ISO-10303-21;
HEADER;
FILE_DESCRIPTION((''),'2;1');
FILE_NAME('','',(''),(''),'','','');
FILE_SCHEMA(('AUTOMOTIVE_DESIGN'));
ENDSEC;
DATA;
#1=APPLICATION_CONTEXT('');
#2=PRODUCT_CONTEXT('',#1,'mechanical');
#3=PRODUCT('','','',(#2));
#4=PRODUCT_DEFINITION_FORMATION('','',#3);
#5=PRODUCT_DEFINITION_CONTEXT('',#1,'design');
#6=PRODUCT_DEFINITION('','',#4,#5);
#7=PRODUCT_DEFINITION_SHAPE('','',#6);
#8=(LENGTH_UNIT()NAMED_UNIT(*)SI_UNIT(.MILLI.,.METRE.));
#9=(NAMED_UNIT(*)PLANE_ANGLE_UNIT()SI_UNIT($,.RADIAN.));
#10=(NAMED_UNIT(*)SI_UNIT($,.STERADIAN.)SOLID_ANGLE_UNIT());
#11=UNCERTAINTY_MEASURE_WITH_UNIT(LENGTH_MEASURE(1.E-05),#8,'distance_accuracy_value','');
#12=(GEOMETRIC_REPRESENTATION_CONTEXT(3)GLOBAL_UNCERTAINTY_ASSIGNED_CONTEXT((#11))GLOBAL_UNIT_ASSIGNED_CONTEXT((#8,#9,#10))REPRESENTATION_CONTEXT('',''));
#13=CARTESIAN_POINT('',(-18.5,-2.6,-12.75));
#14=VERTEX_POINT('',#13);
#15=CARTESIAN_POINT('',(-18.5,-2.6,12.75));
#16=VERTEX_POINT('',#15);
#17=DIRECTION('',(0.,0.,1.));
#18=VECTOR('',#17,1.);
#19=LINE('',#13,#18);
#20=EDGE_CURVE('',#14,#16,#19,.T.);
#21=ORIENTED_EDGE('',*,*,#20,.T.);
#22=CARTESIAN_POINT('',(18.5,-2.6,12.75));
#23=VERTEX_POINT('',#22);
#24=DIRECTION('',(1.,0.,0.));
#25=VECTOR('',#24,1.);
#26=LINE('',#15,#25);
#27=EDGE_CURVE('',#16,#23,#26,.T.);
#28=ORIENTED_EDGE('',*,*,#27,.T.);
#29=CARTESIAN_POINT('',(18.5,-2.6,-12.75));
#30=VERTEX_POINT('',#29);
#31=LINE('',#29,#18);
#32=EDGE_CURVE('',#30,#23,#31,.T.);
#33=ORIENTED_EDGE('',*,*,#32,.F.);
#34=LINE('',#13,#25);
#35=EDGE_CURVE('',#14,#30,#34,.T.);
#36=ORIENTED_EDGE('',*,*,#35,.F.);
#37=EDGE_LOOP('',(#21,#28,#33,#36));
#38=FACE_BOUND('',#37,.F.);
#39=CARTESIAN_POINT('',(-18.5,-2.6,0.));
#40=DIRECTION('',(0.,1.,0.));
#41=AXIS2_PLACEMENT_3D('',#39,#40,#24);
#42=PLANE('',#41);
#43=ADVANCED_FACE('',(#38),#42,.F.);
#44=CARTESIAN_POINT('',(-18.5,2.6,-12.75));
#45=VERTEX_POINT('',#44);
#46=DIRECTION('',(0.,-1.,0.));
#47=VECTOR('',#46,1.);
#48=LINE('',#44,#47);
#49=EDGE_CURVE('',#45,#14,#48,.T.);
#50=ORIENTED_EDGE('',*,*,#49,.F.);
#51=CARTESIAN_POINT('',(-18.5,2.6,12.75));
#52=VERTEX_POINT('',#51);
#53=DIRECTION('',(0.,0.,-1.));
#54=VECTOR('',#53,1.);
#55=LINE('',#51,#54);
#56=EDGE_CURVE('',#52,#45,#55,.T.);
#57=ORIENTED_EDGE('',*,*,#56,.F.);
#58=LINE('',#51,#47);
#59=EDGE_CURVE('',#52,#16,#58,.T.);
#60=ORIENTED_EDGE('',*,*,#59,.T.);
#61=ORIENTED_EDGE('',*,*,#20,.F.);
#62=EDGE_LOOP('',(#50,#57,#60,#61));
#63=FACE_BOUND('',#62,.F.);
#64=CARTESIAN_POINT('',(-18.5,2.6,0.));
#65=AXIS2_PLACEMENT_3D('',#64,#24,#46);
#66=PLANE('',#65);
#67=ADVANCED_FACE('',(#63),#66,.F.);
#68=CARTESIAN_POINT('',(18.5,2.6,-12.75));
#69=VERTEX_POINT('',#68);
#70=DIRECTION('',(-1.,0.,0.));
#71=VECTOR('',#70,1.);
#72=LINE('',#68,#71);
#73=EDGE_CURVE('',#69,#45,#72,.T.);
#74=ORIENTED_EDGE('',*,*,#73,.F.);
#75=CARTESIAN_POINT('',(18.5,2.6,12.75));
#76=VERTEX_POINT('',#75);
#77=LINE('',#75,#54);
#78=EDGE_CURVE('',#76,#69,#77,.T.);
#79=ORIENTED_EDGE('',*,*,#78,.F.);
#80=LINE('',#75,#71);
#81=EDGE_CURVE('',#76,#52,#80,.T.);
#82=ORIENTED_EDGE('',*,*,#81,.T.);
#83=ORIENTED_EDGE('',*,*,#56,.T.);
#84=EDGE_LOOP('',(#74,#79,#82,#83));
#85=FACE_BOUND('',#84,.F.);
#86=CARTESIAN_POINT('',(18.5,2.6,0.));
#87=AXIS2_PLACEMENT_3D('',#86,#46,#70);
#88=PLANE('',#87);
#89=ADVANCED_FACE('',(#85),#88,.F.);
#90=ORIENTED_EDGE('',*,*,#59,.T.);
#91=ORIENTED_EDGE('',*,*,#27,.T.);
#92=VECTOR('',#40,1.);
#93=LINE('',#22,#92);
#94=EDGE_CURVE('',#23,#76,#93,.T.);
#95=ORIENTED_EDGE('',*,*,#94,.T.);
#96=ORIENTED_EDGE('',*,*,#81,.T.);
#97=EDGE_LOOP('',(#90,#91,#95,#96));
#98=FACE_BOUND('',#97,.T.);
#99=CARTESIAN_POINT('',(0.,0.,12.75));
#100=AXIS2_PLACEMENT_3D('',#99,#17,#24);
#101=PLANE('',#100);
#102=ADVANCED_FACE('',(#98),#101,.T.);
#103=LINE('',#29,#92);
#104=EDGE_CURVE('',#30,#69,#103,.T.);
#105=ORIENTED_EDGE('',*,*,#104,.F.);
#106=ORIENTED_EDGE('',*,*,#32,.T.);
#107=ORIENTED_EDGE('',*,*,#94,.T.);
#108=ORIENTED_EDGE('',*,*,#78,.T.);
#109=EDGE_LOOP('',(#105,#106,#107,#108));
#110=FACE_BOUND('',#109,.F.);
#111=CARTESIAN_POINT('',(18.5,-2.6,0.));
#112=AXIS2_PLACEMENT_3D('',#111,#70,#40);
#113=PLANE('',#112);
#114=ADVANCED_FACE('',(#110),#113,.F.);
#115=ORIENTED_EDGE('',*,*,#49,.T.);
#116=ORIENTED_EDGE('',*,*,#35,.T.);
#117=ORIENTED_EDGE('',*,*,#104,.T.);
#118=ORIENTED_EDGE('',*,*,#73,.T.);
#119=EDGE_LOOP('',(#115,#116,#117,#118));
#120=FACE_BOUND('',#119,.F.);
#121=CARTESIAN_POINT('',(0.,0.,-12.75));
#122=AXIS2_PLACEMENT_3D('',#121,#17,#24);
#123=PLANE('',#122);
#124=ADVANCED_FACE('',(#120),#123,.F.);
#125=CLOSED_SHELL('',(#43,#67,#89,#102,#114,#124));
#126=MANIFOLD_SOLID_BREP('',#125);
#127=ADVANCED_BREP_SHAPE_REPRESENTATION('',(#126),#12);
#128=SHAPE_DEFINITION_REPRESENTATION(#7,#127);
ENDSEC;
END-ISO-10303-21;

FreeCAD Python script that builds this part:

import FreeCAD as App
import Part
import Sketcher
from FreeCAD import Vector
Q = App.Units.Quantity


def add_polygon(sketch, points):
    """Adds a closed chain of lines whose ends are joined by coincident constraints."""
    first, n = sketch.GeometryCount, len(points)
    for a, b in zip(points, points[1:] + points[:1]):
        sketch.addGeometry(Part.LineSegment(App.Vector(*a, 0), App.Vector(*b, 0)), False)
    for i in range(n):
        sketch.addConstraint(Sketcher.Constraint("Coincident", first + i, 2, first + (i + 1) % n, 1))

doc = App.newDocument("Part")
body = doc.addObject("PartDesign::Body", "Body")

sketch1 = body.newObject("Sketcher::SketchObject", "Sketch")
sketch1.AttachmentSupport = (doc.getObject("XY_Plane"), [""])
sketch1.MapMode = "FlatFace"
add_polygon(sketch1, [(-18.5, 2.6), (-18.5, -2.6), (18.5, -2.6), (18.5, 2.6)])
sketch1.addConstraint([
    Sketcher.Constraint("Vertical", 0),
    Sketcher.Constraint("Horizontal", 1),
    Sketcher.Constraint("Vertical", 2),
    Sketcher.Constraint("Horizontal", 3),
    Sketcher.Constraint("Symmetric", 0, 2, 2, 2, -1, 1),
    Sketcher.Constraint("DistanceX", 1, 1, 1, 2, Q("37 mm")),
    Sketcher.Constraint("DistanceY", 0, 2, 0, 1, Q("5.2 mm")),
])
pad1 = body.newObject("PartDesign::Pad", "Pad")
pad1.Profile = sketch1
pad1.Length = 25.5
pad1.Midplane = True

doc.recompute()
